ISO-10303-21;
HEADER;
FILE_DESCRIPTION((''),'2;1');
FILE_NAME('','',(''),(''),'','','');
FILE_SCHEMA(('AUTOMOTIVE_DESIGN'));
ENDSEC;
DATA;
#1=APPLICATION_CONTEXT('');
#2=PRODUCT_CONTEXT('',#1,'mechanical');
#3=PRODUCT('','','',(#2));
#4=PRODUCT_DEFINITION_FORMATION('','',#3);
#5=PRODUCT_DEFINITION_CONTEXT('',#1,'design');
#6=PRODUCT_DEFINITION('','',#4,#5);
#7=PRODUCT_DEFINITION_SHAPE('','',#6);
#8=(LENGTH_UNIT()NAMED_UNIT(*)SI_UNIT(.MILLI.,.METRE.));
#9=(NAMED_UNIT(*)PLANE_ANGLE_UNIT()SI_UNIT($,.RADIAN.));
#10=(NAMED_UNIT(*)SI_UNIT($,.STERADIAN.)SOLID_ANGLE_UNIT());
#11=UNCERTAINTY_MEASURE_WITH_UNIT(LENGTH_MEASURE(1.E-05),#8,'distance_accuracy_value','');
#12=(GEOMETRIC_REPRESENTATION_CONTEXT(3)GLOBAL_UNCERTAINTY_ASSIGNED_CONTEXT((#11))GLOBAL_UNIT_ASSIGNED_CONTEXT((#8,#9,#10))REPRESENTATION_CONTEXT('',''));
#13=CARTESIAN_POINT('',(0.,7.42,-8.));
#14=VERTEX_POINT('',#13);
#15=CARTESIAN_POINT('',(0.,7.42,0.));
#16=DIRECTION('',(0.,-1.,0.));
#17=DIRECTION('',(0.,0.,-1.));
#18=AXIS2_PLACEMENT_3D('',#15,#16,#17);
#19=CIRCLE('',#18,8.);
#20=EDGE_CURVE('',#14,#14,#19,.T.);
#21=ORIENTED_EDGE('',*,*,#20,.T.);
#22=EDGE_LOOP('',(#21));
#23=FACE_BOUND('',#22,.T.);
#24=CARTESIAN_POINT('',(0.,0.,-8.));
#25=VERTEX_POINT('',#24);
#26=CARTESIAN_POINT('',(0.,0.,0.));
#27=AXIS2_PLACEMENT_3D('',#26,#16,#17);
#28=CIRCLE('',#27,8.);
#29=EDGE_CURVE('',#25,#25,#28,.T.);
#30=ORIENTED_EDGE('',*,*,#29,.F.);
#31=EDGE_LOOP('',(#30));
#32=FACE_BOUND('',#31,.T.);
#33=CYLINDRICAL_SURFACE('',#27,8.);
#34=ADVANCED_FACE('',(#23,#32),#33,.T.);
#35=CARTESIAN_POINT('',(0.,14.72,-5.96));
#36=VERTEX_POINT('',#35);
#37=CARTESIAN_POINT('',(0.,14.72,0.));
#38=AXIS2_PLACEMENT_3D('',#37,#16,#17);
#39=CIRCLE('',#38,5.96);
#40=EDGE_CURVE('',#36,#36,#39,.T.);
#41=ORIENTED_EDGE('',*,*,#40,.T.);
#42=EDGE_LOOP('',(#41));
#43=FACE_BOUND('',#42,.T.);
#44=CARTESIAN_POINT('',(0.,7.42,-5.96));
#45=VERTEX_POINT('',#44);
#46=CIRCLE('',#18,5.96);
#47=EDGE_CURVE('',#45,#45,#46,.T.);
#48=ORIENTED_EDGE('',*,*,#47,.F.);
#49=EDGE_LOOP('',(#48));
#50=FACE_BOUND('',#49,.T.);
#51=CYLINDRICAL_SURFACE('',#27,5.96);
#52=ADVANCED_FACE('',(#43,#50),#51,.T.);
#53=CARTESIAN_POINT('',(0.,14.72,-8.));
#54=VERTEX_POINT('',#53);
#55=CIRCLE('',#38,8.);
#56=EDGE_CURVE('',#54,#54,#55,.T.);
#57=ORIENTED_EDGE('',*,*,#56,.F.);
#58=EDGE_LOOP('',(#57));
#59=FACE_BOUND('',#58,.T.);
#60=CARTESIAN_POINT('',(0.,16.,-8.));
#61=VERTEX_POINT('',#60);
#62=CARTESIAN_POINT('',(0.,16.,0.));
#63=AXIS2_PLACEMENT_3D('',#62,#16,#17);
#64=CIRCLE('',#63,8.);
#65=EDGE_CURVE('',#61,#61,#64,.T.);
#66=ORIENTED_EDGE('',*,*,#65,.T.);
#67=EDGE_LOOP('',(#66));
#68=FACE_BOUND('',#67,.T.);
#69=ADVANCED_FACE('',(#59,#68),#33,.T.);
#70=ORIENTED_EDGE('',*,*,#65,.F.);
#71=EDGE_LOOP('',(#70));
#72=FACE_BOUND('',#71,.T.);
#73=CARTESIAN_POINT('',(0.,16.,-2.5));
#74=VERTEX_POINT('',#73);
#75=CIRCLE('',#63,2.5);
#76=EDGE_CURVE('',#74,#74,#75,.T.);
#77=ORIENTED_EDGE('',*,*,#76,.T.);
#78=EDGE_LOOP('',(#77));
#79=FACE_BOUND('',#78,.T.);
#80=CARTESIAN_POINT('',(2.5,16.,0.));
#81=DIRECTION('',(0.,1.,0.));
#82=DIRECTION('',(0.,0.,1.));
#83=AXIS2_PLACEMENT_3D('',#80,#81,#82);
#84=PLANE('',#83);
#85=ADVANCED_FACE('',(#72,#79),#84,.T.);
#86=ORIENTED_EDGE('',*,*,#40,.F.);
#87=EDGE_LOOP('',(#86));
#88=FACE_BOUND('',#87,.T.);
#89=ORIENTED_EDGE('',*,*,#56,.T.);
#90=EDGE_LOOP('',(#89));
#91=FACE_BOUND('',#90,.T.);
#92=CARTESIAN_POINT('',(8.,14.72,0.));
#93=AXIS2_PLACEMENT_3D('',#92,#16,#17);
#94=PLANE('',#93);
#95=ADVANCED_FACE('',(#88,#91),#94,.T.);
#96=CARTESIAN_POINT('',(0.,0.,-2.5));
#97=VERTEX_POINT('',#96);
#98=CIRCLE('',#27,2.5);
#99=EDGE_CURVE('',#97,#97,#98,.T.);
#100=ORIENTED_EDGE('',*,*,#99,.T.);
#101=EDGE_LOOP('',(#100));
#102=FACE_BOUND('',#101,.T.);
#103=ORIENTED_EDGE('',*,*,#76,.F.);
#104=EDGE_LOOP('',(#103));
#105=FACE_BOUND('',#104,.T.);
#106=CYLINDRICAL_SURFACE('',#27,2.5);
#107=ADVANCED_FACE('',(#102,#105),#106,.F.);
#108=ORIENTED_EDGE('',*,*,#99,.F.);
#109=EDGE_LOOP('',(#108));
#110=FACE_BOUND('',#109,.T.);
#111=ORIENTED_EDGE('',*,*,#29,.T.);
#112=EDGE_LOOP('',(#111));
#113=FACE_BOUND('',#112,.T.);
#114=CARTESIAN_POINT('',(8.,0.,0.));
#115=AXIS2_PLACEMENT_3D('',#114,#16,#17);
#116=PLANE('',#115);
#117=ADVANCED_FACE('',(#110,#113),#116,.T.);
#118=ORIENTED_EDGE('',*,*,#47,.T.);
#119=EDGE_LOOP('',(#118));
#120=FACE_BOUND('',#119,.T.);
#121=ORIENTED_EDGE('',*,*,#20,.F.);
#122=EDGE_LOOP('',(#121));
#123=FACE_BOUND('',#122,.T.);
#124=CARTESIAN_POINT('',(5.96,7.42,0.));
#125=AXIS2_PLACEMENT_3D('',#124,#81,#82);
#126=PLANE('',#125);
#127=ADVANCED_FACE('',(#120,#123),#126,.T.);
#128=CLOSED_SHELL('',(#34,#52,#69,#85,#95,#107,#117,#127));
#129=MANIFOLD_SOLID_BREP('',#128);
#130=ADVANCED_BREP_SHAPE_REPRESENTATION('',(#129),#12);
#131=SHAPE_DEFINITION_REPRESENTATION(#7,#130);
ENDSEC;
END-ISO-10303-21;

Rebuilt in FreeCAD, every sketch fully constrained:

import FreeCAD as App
import Part
import Sketcher

doc = App.newDocument("Part")
body = doc.addObject("PartDesign::Body", "Body")

# Sketch on XY plane
sketch1 = body.newObject("Sketcher::SketchObject", "Sketch")
sketch1.AttachmentSupport = (doc.getObject("XY_Plane"), [""])
sketch1.MapMode = "FlatFace"
sketch1.addGeometry(Part.LineSegment(App.Vector(2.5, 16, 0), App.Vector(2.5, 0, 0)), False)
sketch1.addGeometry(Part.LineSegment(App.Vector(2.5, 0, 0), App.Vector(8, 0, 0)), False)
sketch1.addGeometry(Part.LineSegment(App.Vector(8, 0, 0), App.Vector(8, 7.4, 0)), False)
sketch1.addGeometry(Part.LineSegment(App.Vector(8, 7.4, 0), App.Vector(6, 7.4, 0)), False)
sketch1.addGeometry(Part.LineSegment(App.Vector(6, 7.4, 0), App.Vector(6, 14.7, 0)), False)
sketch1.addGeometry(Part.LineSegment(App.Vector(6, 14.7, 0), App.Vector(8, 14.7, 0)), False)
sketch1.addGeometry(Part.LineSegment(App.Vector(8, 14.7, 0), App.Vector(8, 16, 0)), False)
sketch1.addGeometry(Part.LineSegment(App.Vector(8, 16, 0), App.Vector(2.5, 16, 0)), False)
sketch1.addConstraint(Sketcher.Constraint("Coincident", 0, 2, 1, 1))
sketch1.addConstraint(Sketcher.Constraint("Coincident", 1, 2, 2, 1))
sketch1.addConstraint(Sketcher.Constraint("Coincident", 2, 2, 3, 1))
sketch1.addConstraint(Sketcher.Constraint("Coincident", 3, 2, 4, 1))
sketch1.addConstraint(Sketcher.Constraint("Coincident", 4, 2, 5, 1))
sketch1.addConstraint(Sketcher.Constraint("Coincident", 5, 2, 6, 1))
sketch1.addConstraint(Sketcher.Constraint("Coincident", 6, 2, 7, 1))
sketch1.addConstraint(Sketcher.Constraint("Coincident", 7, 2, 0, 1))
sketch1.addConstraint(Sketcher.Constraint("Vertical", 0))
sketch1.addConstraint(Sketcher.Constraint("Horizontal", 1))
sketch1.addConstraint(Sketcher.Constraint("Vertical", 2))
sketch1.addConstraint(Sketcher.Constraint("Horizontal", 3))
sketch1.addConstraint(Sketcher.Constraint("Vertical", 4))
sketch1.addConstraint(Sketcher.Constraint("Horizontal", 5))
sketch1.addConstraint(Sketcher.Constraint("Vertical", 6))
sketch1.addConstraint(Sketcher.Constraint("Horizontal", 7))
sketch1.addConstraint(Sketcher.Constraint("PointOnObject", 0, 2, -1))
sketch1.addConstraint(Sketcher.Constraint("Vertical", 2, 2, 5, 2))
sketch1.addConstraint(Sketcher.Constraint("DistanceY", 0, 2, 0, 1, 16.0))
sketch1.addConstraint(Sketcher.Constraint("DistanceX", 1, 1, 1, 2, 5.5))
sketch1.addConstraint(Sketcher.Constraint("DistanceY", 4, 1, 4, 2, 7.3))
sketch1.addConstraint(Sketcher.Constraint("DistanceX", -1, 1, 1, 2, 8.0))
sketch1.addConstraint(Sketcher.Constraint("DistanceX", 3, 2, 3, 1, 2.04))
sketch1.addConstraint(Sketcher.Constraint("DistanceY", 2, 1, 2, 2, 7.42))
revolution = body.newObject("PartDesign::Revolution", "Revolution")
revolution.Profile = sketch1
revolution.ReferenceAxis = (sketch1, ["V_Axis"])
revolution.Angle = 360

doc.recompute()
